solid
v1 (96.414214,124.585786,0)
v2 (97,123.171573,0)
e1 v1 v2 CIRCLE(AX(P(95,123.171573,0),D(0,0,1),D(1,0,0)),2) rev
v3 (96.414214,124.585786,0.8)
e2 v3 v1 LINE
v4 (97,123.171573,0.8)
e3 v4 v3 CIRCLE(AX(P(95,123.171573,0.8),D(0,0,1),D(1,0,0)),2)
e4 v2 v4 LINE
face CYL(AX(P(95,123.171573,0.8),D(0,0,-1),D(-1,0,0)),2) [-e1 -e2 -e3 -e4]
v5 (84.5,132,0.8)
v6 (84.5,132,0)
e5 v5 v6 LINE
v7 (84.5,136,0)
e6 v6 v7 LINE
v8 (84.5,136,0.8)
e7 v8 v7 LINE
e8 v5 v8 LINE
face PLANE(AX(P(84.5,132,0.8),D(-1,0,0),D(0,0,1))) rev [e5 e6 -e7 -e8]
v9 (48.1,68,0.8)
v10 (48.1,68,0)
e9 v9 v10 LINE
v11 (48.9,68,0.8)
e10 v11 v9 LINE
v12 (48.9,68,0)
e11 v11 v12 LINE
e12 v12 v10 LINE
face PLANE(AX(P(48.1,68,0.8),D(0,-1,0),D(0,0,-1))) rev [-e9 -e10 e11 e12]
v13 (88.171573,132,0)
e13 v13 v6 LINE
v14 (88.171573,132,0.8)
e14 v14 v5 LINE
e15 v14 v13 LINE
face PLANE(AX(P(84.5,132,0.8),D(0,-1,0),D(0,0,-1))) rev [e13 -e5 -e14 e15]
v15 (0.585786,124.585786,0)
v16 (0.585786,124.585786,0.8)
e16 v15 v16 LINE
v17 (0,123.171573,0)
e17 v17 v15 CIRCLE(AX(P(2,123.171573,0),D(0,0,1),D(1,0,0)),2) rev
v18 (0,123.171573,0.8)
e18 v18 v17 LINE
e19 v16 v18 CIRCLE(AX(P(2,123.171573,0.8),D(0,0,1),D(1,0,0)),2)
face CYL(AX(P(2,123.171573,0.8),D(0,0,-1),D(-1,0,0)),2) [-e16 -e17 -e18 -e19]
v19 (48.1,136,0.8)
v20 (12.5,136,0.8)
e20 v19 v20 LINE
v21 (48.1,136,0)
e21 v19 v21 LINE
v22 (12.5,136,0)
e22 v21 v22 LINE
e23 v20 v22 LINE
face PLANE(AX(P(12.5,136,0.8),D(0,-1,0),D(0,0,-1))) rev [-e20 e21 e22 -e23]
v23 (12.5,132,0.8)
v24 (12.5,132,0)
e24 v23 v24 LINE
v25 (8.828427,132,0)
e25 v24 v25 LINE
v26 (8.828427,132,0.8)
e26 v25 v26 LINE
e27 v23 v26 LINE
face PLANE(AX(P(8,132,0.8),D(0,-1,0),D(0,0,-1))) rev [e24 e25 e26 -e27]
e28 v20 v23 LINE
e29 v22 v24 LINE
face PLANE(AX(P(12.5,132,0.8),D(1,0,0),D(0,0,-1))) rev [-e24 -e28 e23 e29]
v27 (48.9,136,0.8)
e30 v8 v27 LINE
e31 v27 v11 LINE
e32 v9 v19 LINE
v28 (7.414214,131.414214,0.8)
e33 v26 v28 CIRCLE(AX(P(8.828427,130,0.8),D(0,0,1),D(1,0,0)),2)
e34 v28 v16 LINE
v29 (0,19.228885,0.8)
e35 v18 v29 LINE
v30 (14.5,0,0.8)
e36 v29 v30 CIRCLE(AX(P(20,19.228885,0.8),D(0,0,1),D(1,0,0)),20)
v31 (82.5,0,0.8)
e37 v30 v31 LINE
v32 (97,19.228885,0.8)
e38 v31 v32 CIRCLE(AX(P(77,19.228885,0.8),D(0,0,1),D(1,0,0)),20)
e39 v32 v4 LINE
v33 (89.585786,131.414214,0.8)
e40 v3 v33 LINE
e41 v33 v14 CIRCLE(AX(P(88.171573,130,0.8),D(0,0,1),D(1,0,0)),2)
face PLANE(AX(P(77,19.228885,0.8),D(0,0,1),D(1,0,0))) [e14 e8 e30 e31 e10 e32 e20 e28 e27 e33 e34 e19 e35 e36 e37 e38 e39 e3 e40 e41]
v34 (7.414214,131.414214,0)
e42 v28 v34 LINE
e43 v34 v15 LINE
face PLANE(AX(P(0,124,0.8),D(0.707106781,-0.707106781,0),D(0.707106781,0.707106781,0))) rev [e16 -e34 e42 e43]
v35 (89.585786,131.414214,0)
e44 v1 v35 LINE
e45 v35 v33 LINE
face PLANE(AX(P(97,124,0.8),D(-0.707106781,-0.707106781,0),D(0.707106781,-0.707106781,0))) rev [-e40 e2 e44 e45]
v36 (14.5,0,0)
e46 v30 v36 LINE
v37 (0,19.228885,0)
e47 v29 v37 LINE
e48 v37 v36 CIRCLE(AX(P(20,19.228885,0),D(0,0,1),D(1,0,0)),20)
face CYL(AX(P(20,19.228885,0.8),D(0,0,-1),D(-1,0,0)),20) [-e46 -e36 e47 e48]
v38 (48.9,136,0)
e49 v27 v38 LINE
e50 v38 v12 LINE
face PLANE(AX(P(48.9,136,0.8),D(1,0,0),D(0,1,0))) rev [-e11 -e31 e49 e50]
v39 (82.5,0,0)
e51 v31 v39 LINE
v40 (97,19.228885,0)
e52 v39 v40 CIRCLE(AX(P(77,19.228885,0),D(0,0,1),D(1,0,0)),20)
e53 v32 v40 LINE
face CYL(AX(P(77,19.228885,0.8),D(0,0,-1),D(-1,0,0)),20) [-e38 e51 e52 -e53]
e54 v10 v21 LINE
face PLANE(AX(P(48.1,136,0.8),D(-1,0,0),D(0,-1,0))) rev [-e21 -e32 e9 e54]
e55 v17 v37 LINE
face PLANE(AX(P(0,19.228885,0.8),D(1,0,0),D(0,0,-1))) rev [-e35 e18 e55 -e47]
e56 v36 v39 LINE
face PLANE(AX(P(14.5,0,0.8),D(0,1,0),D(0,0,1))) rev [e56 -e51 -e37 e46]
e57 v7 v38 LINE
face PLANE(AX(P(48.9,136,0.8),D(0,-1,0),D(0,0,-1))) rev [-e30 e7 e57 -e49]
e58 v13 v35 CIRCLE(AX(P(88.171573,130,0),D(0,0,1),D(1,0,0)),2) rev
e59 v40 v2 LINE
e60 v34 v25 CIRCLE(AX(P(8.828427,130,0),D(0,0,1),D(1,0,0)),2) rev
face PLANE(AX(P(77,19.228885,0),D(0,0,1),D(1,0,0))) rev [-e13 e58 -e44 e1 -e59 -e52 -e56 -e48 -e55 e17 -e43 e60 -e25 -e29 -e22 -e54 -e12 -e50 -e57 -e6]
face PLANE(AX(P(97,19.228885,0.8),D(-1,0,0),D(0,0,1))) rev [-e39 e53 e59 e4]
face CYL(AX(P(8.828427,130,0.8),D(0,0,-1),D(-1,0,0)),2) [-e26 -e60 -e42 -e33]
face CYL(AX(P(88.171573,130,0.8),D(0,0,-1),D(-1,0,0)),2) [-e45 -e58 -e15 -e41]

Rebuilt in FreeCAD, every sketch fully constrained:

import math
import FreeCAD as App
import Part
import Sketcher

V = App.Vector


def edges_at(feature, points):
    """Names of the edges that pass closest to the given points."""
    edges = feature.Shape.Edges
    near = lambda p: min(range(len(edges)), key=lambda i: edges[i].distToShape(Part.Vertex(*p))[0])
    return sorted({f"Edge{near(p) + 1}" for p in points})

doc = App.newDocument("Part")
body = doc.addObject("PartDesign::Body", "Body")

# Sketch on XY plane
sketch1 = doc.addObject("Sketcher::SketchObject", "Sketch")
body.addObject(sketch1)
sketch1.AttachmentSupport = (doc.XY_Plane, [""])
sketch1.MapMode = "FlatFace"
sketch1.addGeometry([
    Part.LineSegment(V(14.5, 0, 0), V(82.5, 0, 0)),  # 0
    Part.ArcOfCircle(Part.Circle(V(77, 19.2, 0), V(0, 0, 1), 20), math.radians(-74), math.radians(0)),  # 1
    Part.LineSegment(V(97, 19.2, 0), V(97, 124, 0)),  # 2
    Part.LineSegment(V(97, 124, 0), V(89, 132, 0)),  # 3
    Part.LineSegment(V(89, 132, 0), V(84.5, 132, 0)),  # 4
    Part.LineSegment(V(84.5, 132, 0), V(84.5, 136, 0)),  # 5
    Part.LineSegment(V(84.5, 136, 0), V(48.9, 136, 0)),  # 6
    Part.LineSegment(V(48.9, 136, 0), V(48.9, 68, 0)),  # 7
    Part.LineSegment(V(48.9, 68, 0), V(48.1, 68, 0)),  # 8
    Part.LineSegment(V(48.1, 68, 0), V(48.1, 136, 0)),  # 9
    Part.LineSegment(V(48.1, 136, 0), V(12.5, 136, 0)),  # 10
    Part.LineSegment(V(12.5, 136, 0), V(12.5, 132, 0)),  # 11
    Part.LineSegment(V(12.5, 132, 0), V(8, 132, 0)),  # 12
    Part.LineSegment(V(8, 132, 0), V(0, 124, 0)),  # 13
    Part.LineSegment(V(0, 124, 0), V(0, 19.2, 0)),  # 14
    Part.ArcOfCircle(Part.Circle(V(20, 19.2, 0), V(0, 0, 1), 20), math.radians(180), math.radians(254)),  # 15
], False)
sketch1.addConstraint([
    Sketcher.Constraint("Coincident", 0, 2, 1, 1),
    Sketcher.Constraint("Tangent", 1, 2, 2, 1),
    Sketcher.Constraint("Coincident", 2, 2, 3, 1),
    Sketcher.Constraint("Coincident", 3, 2, 4, 1),
    Sketcher.Constraint("Coincident", 4, 2, 5, 1),
    Sketcher.Constraint("Coincident", 5, 2, 6, 1),
    Sketcher.Constraint("Coincident", 6, 2, 7, 1),
    Sketcher.Constraint("Coincident", 7, 2, 8, 1),
    Sketcher.Constraint("Coincident", 8, 2, 9, 1),
    Sketcher.Constraint("Coincident", 9, 2, 10, 1),
    Sketcher.Constraint("Coincident", 10, 2, 11, 1),
    Sketcher.Constraint("Coincident", 11, 2, 12, 1),
    Sketcher.Constraint("Coincident", 12, 2, 13, 1),
    Sketcher.Constraint("Coincident", 13, 2, 14, 1),
    Sketcher.Constraint("Tangent", 14, 2, 15, 1),
    Sketcher.Constraint("Coincident", 15, 2, 0, 1),
    Sketcher.Constraint("Horizontal", 0),
    Sketcher.Constraint("Vertical", 2),
    Sketcher.Constraint("Horizontal", 4),
    Sketcher.Constraint("Vertical", 5),
    Sketcher.Constraint("Horizontal", 6),
    Sketcher.Constraint("Vertical", 7),
    Sketcher.Constraint("Horizontal", 8),
    Sketcher.Constraint("Vertical", 9),
    Sketcher.Constraint("Horizontal", 10),
    Sketcher.Constraint("Vertical", 11),
    Sketcher.Constraint("Horizontal", 12),
    Sketcher.Constraint("Vertical", 14),
    Sketcher.Constraint("Equal", 1, 15),
    Sketcher.Constraint("PointOnObject", 0, 2, -1),
    Sketcher.Constraint("PointOnObject", 13, 2, -2),
    Sketcher.Constraint("Perpendicular", 3, 13),
    Sketcher.Constraint("Horizontal", 1, 3, 15, 3),
    Sketcher.Constraint("Horizontal", 6, 2, 9, 2),
    Sketcher.Constraint("Horizontal", 4, 2, 11, 2),
    Sketcher.Constraint("Horizontal", 2, 2, 13, 2),
    Sketcher.Constraint("Equal", 6, 10),
    Sketcher.Constraint("Equal", 4, 12),
    Sketcher.Constraint("Equal", 0, 7),
    Sketcher.Constraint("Equal", 3, 13),
    Sketcher.Constraint("Radius", 1, 20.0),
    Sketcher.Constraint("DistanceX", 0, 1, 0, 2, 68.0),
    Sketcher.Constraint("DistanceY", 5, 1, 5, 2, 4.0),
    Sketcher.Constraint("DistanceX", 4, 2, 4, 1, 4.5),
    Sketcher.Constraint("DistanceX", 6, 2, 6, 1, 35.6),
    Sketcher.Constraint("DistanceX", 8, 2, 8, 1, 0.8),
    Sketcher.Constraint("DistanceX", -1, 1, 1, 3, 77.0),
    Sketcher.Constraint("DistanceY", -1, 1, 2, 2, 124.0),
])
pad1 = doc.addObject("PartDesign::Pad", "Pad")
body.addObject(pad1)
pad1.Profile = sketch1
pad1.Length = 0.8
doc.recompute()

fillet = doc.addObject("PartDesign::Fillet", "Fillet")
body.addObject(fillet)
fillet.Base = (pad1, edges_at(pad1, [
    (89, 132, 0.4),
    (97, 124, 0.4),
    (0, 124, 0.4),
    (8, 132, 0.4),
]))
fillet.Radius = 2

doc.recompute()
